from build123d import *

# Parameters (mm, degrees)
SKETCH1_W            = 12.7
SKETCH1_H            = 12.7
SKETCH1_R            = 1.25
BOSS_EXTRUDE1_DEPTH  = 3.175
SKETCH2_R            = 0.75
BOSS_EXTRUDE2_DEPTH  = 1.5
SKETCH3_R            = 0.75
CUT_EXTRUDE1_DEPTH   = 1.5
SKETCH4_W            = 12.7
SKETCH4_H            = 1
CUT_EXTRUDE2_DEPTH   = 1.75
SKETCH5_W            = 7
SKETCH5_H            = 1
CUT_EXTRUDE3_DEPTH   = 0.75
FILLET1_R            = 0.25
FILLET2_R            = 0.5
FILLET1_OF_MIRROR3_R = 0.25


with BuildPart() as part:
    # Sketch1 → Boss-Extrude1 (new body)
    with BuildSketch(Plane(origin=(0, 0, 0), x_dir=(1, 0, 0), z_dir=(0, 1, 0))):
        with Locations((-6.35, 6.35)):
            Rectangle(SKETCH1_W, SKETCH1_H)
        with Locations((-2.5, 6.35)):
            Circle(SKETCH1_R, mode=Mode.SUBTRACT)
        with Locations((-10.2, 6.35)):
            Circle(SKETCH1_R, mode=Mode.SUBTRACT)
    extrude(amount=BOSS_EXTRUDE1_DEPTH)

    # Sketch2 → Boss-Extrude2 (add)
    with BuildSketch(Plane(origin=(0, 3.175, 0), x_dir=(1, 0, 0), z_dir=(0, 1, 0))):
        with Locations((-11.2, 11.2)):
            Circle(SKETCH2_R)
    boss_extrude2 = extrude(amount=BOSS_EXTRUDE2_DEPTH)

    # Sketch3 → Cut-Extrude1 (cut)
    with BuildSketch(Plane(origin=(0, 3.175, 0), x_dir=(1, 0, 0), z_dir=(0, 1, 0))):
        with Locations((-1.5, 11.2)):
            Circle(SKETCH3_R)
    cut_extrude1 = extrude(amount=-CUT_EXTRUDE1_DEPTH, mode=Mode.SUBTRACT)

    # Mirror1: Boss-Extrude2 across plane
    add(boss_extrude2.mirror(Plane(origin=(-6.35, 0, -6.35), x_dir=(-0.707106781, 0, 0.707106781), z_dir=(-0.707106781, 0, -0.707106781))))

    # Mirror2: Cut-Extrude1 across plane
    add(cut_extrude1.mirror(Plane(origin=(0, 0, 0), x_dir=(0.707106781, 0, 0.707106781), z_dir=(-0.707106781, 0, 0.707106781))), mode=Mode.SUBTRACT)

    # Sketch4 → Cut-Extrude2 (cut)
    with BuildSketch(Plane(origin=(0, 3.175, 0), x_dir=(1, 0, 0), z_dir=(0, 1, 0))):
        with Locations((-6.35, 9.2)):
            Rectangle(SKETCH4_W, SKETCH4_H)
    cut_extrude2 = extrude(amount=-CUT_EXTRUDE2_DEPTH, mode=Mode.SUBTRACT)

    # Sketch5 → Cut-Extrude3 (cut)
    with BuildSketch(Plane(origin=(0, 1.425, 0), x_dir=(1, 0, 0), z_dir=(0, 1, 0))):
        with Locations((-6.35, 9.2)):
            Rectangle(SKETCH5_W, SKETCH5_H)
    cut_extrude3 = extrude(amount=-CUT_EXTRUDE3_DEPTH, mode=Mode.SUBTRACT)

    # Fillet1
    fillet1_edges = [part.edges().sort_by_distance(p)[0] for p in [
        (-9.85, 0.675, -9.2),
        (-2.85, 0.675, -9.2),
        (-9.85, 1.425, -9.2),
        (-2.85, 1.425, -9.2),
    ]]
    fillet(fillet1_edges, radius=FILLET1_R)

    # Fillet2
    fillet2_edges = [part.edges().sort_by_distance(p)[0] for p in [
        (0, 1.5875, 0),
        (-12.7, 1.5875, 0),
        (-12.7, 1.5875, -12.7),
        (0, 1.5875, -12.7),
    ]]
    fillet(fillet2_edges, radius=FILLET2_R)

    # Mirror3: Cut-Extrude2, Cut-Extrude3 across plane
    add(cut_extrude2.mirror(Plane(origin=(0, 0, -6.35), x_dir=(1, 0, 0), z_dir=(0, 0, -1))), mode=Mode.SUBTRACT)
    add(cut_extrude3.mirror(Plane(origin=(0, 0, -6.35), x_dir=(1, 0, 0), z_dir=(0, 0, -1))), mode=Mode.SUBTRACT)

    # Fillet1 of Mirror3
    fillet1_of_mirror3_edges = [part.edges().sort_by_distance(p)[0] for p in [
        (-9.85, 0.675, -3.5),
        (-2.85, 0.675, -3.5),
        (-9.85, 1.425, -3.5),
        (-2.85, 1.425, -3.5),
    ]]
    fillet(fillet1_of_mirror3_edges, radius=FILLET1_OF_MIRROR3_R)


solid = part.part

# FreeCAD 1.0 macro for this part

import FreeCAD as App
import Part
import Sketcher


def edges_at(feature, points):
    """Names of the edges that pass closest to the given points."""
    edges = feature.Shape.Edges
    near = lambda p: min(range(len(edges)), key=lambda i: edges[i].distToShape(Part.Vertex(*p))[0])
    return sorted({f"Edge{near(p) + 1}" for p in points})


def add_polygon(sketch, points):
    """Adds a closed chain of lines whose ends are joined by coincident constraints."""
    first, n = sketch.GeometryCount, len(points)
    for a, b in zip(points, points[1:] + points[:1]):
        sketch.addGeometry(Part.LineSegment(App.Vector(*a, 0), App.Vector(*b, 0)), False)
    for i in range(n):
        sketch.addConstraint(Sketcher.Constraint("Coincident", first + i, 2, first + (i + 1) % n, 1))

doc = App.newDocument("Part")
body = doc.addObject("PartDesign::Body", "Body")

# Sketch on XZ plane
sketch1 = body.newObject("Sketcher::SketchObject", "Sketch")
sketch1.AttachmentSupport = (doc.getObject("XZ_Plane"), [""])
sketch1.MapMode = "FlatFace"
add_polygon(sketch1, [(-12.7, -12.7), (-12.7, 0), (0, 0), (0, -12.7)])  # lines 0-3
sketch1.addGeometry(Part.Circle(App.Vector(-10.2, -6.3, 0), App.Vector(0, 0, 1), 1.2), False)  # 4
sketch1.addGeometry(Part.Circle(App.Vector(-2.5, -6.3, 0), App.Vector(0, 0, 1), 1.2), False)  # 5
sketch1.addConstraint(Sketcher.Constraint("Vertical", 0))
sketch1.addConstraint(Sketcher.Constraint("Horizontal", 1))
sketch1.addConstraint(Sketcher.Constraint("Vertical", 2))
sketch1.addConstraint(Sketcher.Constraint("Horizontal", 3))
sketch1.addConstraint(Sketcher.Constraint("Coincident", 1, 2, -1, 1))
sketch1.addConstraint(Sketcher.Constraint("Equal", 4, 5))
sketch1.addConstraint(Sketcher.Constraint("Horizontal", 4, 3, 5, 3))
sketch1.addConstraint(Sketcher.Constraint("Equal", 3, 0))
sketch1.addConstraint(Sketcher.Constraint("Diameter", 4, 2.5))
sketch1.addConstraint(Sketcher.Constraint("DistanceX", 1, 1, 1, 2, 12.7))
sketch1.addConstraint(Sketcher.Constraint("DistanceX", 4, 3, -1, 1, 10.2))
sketch1.addConstraint(Sketcher.Constraint("DistanceX", 5, 3, -1, 1, 2.5))
sketch1.addConstraint(Sketcher.Constraint("DistanceY", 4, 3, -1, 1, 6.35))
pad1 = body.newObject("PartDesign::Pad", "Pad")
pad1.Profile = sketch1
pad1.Length = 3.175
pad1.Reversed = True

# Sketch on XZ plane
sketch2 = body.newObject("Sketcher::SketchObject", "Sketch001")
sketch2.AttachmentSupport = (doc.getObject("XZ_Plane"), [""])
sketch2.MapMode = "FlatFace"
sketch2.AttachmentOffset = App.Placement(App.Vector(0, 0, -3.175), App.Rotation())
sketch2.addGeometry(Part.Circle(App.Vector(-11.2, -11.2, 0), App.Vector(0, 0, 1), 0.8), False)
sketch2.addConstraint(Sketcher.Constraint("Diameter", 0, 1.5))
sketch2.addConstraint(Sketcher.Constraint("DistanceX", 0, 3, -1, 1, 11.2))
sketch2.addConstraint(Sketcher.Constraint("DistanceY", 0, 3, -1, 1, 11.2))
pad2 = body.newObject("PartDesign::Pad", "Pad001")
pad2.Profile = sketch2
pad2.Length = 1.5
pad2.Reversed = True

# Sketch on XZ plane
sketch3 = body.newObject("Sketcher::SketchObject", "Sketch002")
sketch3.AttachmentSupport = (doc.getObject("XZ_Plane"), [""])
sketch3.MapMode = "FlatFace"
sketch3.AttachmentOffset = App.Placement(App.Vector(0, 0, -3.175), App.Rotation())
sketch3.addGeometry(Part.Circle(App.Vector(-1.5, -11.2, 0), App.Vector(0, 0, 1), 0.8), False)
sketch3.addConstraint(Sketcher.Constraint("Diameter", 0, 1.5))
sketch3.addConstraint(Sketcher.Constraint("DistanceX", 0, 3, -1, 1, 1.5))
sketch3.addConstraint(Sketcher.Constraint("DistanceY", 0, 3, -1, 1, 11.2))
pocket1 = body.newObject("PartDesign::Pocket", "Pocket")
pocket1.Profile = sketch3
pocket1.Length = 1.5
pocket1.Reversed = True
doc.recompute()

datumplane = body.newObject("PartDesign::Plane", "DatumPlane")
datumplane.Placement = App.Placement(App.Vector(-6.35, 0, -6.35), App.Rotation(App.Vector(0.707106781, 0, -0.707106781), App.Vector(0, -1, 0), App.Vector(-0.707106781, 0, -0.707106781), "ZXY"))
mirrored = body.newObject("PartDesign::Mirrored", "Mirrored")
mirrored.Originals = [pad2]
mirrored.MirrorPlane = (datumplane, [""])
body.Tip = mirrored
doc.recompute()

datumplane2 = body.newObject("PartDesign::Plane", "DatumPlane001")
datumplane2.Placement = App.Placement(App.Vector(0, 0, 0), App.Rotation(App.Vector(-0.707106781, 0, -0.707106781), App.Vector(0, -1, 0), App.Vector(-0.707106781, 0, 0.707106781), "ZXY"))
mirrored2 = body.newObject("PartDesign::Mirrored", "Mirrored001")
mirrored2.Originals = [pocket1]
mirrored2.MirrorPlane = (datumplane2, [""])
body.Tip = mirrored2

# Sketch on XZ plane
sketch4 = body.newObject("Sketcher::SketchObject", "Sketch003")
sketch4.AttachmentSupport = (doc.getObject("XZ_Plane"), [""])
sketch4.MapMode = "FlatFace"
sketch4.AttachmentOffset = App.Placement(App.Vector(0, 0, -3.175), App.Rotation())
add_polygon(sketch4, [(-12.7, -9.7), (-12.7, -8.7), (0, -8.7), (0, -9.7)])  # lines 0-3
sketch4.addConstraint(Sketcher.Constraint("Vertical", 0))
sketch4.addConstraint(Sketcher.Constraint("Horizontal", 1))
sketch4.addConstraint(Sketcher.Constraint("Vertical", 2))
sketch4.addConstraint(Sketcher.Constraint("Horizontal", 3))
sketch4.addConstraint(Sketcher.Constraint("PointOnObject", 1, 2, -2))
sketch4.addConstraint(Sketcher.Constraint("DistanceY", 0, 1, 0, 2, 1.0))
sketch4.addConstraint(Sketcher.Constraint("DistanceX", 1, 1, 1, 2, 12.7))
sketch4.addConstraint(Sketcher.Constraint("DistanceY", 0, 2, -1, 1, 8.7))
pocket2 = body.newObject("PartDesign::Pocket", "Pocket001")
pocket2.Profile = sketch4
pocket2.Length = 1.75
pocket2.Reversed = True

# Sketch on XZ plane
sketch5 = body.newObject("Sketcher::SketchObject", "Sketch004")
sketch5.AttachmentSupport = (doc.getObject("XZ_Plane"), [""])
sketch5.MapMode = "FlatFace"
sketch5.AttachmentOffset = App.Placement(App.Vector(0, 0, -1.425), App.Rotation())
add_polygon(sketch5, [(-9.8, -9.7), (-9.8, -8.7), (-2.9, -8.7), (-2.9, -9.7)])  # lines 0-3
sketch5.addConstraint(Sketcher.Constraint("Vertical", 0))
sketch5.addConstraint(Sketcher.Constraint("Horizontal", 1))
sketch5.addConstraint(Sketcher.Constraint("Vertical", 2))
sketch5.addConstraint(Sketcher.Constraint("Horizontal", 3))
sketch5.addConstraint(Sketcher.Constraint("DistanceX", 1, 1, 1, 2, 7.0))
sketch5.addConstraint(Sketcher.Constraint("DistanceY", 0, 1, 0, 2, 1.0))
sketch5.addConstraint(Sketcher.Constraint("DistanceY", 0, 2, -1, 1, 8.7))
sketch5.addConstraint(Sketcher.Constraint("DistanceX", 0, 2, -1, 1, 9.85))
pocket3 = body.newObject("PartDesign::Pocket", "Pocket002")
pocket3.Profile = sketch5
pocket3.Length = 0.75
pocket3.Reversed = True
doc.recompute()

fillet = body.newObject("PartDesign::Fillet", "Fillet")
fillet.Base = (pocket3, edges_at(pocket3, [
    (-9.85, 0.675, -9.2),
    (-2.85, 0.675, -9.2),
    (-9.85, 1.425, -9.2),
    (-2.85, 1.425, -9.2),
]))
fillet.Radius = 0.25
doc.recompute()

fillet2 = body.newObject("PartDesign::Fillet", "Fillet001")
fillet2.Base = (fillet, edges_at(fillet, [
    (0, 1.587, 0),
    (-12.7, 1.587, 0),
    (-12.7, 1.587, -12.7),
    (0, 1.587, -12.7),
]))
fillet2.Radius = 0.5
doc.recompute()

datumplane3 = body.newObject("PartDesign::Plane", "DatumPlane002")
datumplane3.AttachmentSupport = (doc.getObject("XY_Plane"), [""])
datumplane3.MapMode = "FlatFace"
datumplane3.AttachmentOffset = App.Placement(App.Vector(0, 0, -6.35), App.Rotation())
mirrored3 = body.newObject("PartDesign::Mirrored", "Mirrored002")
mirrored3.Originals = [pocket2, pocket3]
mirrored3.MirrorPlane = (datumplane3, [""])
body.Tip = mirrored3
doc.recompute()

fillet3 = body.newObject("PartDesign::Fillet", "Fillet002")
fillet3.Base = (mirrored3, edges_at(mirrored3, [
    (-9.85, 0.675, -3.5),
    (-2.85, 0.675, -3.5),
    (-9.85, 1.425, -3.5),
    (-2.85, 1.425, -3.5),
]))
fillet3.Radius = 0.25

doc.recompute()
